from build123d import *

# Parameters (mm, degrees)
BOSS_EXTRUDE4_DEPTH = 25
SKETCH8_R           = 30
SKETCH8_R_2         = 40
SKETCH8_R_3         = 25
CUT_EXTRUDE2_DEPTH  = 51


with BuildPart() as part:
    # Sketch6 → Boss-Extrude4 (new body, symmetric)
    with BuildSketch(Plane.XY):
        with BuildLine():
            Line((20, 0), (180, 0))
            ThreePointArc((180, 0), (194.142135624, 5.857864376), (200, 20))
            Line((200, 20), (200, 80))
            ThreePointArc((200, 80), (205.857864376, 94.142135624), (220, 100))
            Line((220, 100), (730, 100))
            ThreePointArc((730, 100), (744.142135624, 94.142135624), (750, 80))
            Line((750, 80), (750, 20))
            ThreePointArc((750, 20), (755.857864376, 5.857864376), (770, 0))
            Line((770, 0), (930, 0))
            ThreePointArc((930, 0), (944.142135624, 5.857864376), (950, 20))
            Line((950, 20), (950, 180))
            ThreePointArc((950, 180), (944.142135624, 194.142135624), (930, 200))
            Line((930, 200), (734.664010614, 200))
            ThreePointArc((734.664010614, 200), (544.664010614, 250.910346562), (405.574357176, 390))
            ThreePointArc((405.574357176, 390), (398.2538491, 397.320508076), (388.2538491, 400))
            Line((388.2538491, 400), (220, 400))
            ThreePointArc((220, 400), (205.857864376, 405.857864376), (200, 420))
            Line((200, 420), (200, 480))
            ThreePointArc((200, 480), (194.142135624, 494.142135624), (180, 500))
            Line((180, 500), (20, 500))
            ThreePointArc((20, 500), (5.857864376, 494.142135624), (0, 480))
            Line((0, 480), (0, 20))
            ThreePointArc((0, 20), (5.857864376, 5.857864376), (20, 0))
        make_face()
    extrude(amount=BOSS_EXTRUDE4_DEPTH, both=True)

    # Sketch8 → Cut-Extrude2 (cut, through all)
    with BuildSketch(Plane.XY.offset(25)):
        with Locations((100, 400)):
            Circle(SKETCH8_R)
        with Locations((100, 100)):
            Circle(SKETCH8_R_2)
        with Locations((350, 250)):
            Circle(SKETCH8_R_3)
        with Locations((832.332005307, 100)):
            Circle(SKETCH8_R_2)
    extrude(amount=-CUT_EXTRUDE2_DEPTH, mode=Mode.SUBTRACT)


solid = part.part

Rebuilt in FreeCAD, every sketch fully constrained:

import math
import FreeCAD as App
import Part
import Sketcher
from FreeCAD import Vector

doc = App.newDocument("Part")
body = doc.addObject("PartDesign::Body", "Body")

# Sketch on XY plane
sketch1 = doc.addObject("Sketcher::SketchObject", "Sketch")
body.addObject(sketch1)
sketch1.AttachmentSupport = (doc.XY_Plane, [""])
sketch1.MapMode = "FlatFace"
sketch1.addGeometry([
    Part.LineSegment(Vector(20, 0, 0), Vector(180, 0, 0)),  # 0
    Part.ArcOfCircle(Part.Circle(Vector(180, 20, 0), Vector(0, 0, 1), 20), math.radians(-90), math.radians(0)),  # 1
    Part.LineSegment(Vector(200, 20, 0), Vector(200, 80, 0)),  # 2
    Part.ArcOfCircle(Part.Circle(Vector(220, 80, 0), Vector(0, 0, 1), 20), math.radians(90), math.radians(180)),  # 3
    Part.LineSegment(Vector(220, 100, 0), Vector(730, 100, 0)),  # 4
    Part.ArcOfCircle(Part.Circle(Vector(730, 80, 0), Vector(0, 0, 1), 20), math.radians(0), math.radians(90)),  # 5
    Part.LineSegment(Vector(750, 80, 0), Vector(750, 20, 0)),  # 6
    Part.ArcOfCircle(Part.Circle(Vector(770, 20, 0), Vector(0, 0, 1), 20), math.radians(180), math.radians(270)),  # 7
    Part.LineSegment(Vector(770, 0, 0), Vector(930, 0, 0)),  # 8
    Part.ArcOfCircle(Part.Circle(Vector(930, 20, 0), Vector(0, 0, 1), 20), math.radians(-90), math.radians(0)),  # 9
    Part.LineSegment(Vector(950, 20, 0), Vector(950, 180, 0)),  # 10
    Part.ArcOfCircle(Part.Circle(Vector(930, 180, 0), Vector(0, 0, 1), 20), math.radians(0), math.radians(90)),  # 11
    Part.LineSegment(Vector(930, 200, 0), Vector(735, 200, 0)),  # 12
    Part.ArcOfCircle(Part.Circle(Vector(735, 580, 0), Vector(0, 0, 1), 380), math.radians(-150), math.radians(-90)),  # 13
    Part.ArcOfCircle(Part.Circle(Vector(388, 380, 0), Vector(0, 0, 1), 20), math.radians(30), math.radians(90)),  # 14
    Part.LineSegment(Vector(388, 400, 0), Vector(220, 400, 0)),  # 15
    Part.ArcOfCircle(Part.Circle(Vector(220, 420, 0), Vector(0, 0, 1), 20), math.radians(180), math.radians(270)),  # 16
    Part.LineSegment(Vector(200, 420, 0), Vector(200, 480, 0)),  # 17
    Part.ArcOfCircle(Part.Circle(Vector(180, 480, 0), Vector(0, 0, 1), 20), math.radians(0), math.radians(90)),  # 18
    Part.LineSegment(Vector(180, 500, 0), Vector(20, 500, 0)),  # 19
    Part.ArcOfCircle(Part.Circle(Vector(20, 480, 0), Vector(0, 0, 1), 20), math.radians(90), math.radians(180)),  # 20
    Part.LineSegment(Vector(0, 480, 0), Vector(0, 20, 0)),  # 21
    Part.ArcOfCircle(Part.Circle(Vector(20, 20, 0), Vector(0, 0, 1), 20), math.radians(180), math.radians(270)),  # 22
], False)
sketch1.addConstraint([
    Sketcher.Constraint("Tangent", 0, 2, 1, 1),
    Sketcher.Constraint("Tangent", 1, 2, 2, 1),
    Sketcher.Constraint("Tangent", 2, 2, 3, 2),
    Sketcher.Constraint("Tangent", 3, 1, 4, 1),
    Sketcher.Constraint("Tangent", 4, 2, 5, 2),
    Sketcher.Constraint("Tangent", 5, 1, 6, 1),
    Sketcher.Constraint("Tangent", 6, 2, 7, 1),
    Sketcher.Constraint("Tangent", 7, 2, 8, 1),
    Sketcher.Constraint("Tangent", 8, 2, 9, 1),
    Sketcher.Constraint("Tangent", 9, 2, 10, 1),
    Sketcher.Constraint("Tangent", 10, 2, 11, 1),
    Sketcher.Constraint("Tangent", 11, 2, 12, 1),
    Sketcher.Constraint("Tangent", 12, 2, 13, 2),
    Sketcher.Constraint("Tangent", 13, 1, 14, 1),
    Sketcher.Constraint("Tangent", 14, 2, 15, 1),
    Sketcher.Constraint("Tangent", 15, 2, 16, 2),
    Sketcher.Constraint("Tangent", 16, 1, 17, 1),
    Sketcher.Constraint("Tangent", 17, 2, 18, 1),
    Sketcher.Constraint("Tangent", 18, 2, 19, 1),
    Sketcher.Constraint("Tangent", 19, 2, 20, 1),
    Sketcher.Constraint("Tangent", 20, 2, 21, 1),
    Sketcher.Constraint("Tangent", 21, 2, 22, 1),
    Sketcher.Constraint("Tangent", 22, 2, 0, 1),
    Sketcher.Constraint("Horizontal", 0),
    Sketcher.Constraint("Vertical", 2),
    Sketcher.Constraint("Horizontal", 4),
    Sketcher.Constraint("Vertical", 6),
    Sketcher.Constraint("Horizontal", 8),
    Sketcher.Constraint("Vertical", 10),
    Sketcher.Constraint("Horizontal", 12),
    Sketcher.Constraint("Horizontal", 15),
    Sketcher.Constraint("Vertical", 17),
    Sketcher.Constraint("Horizontal", 19),
    Sketcher.Constraint("Vertical", 21),
    Sketcher.Constraint("Equal", 1, 3),
    Sketcher.Constraint("Equal", 3, 5),
    Sketcher.Constraint("Equal", 5, 7),
    Sketcher.Constraint("Equal", 7, 9),
    Sketcher.Constraint("Equal", 9, 11),
    Sketcher.Constraint("Equal", 11, 14),
    Sketcher.Constraint("Equal", 14, 16),
    Sketcher.Constraint("Equal", 16, 18),
    Sketcher.Constraint("Equal", 18, 20),
    Sketcher.Constraint("Equal", 20, 22),
    Sketcher.Constraint("PointOnObject", 0, 2, -1),
    Sketcher.Constraint("PointOnObject", 7, 2, -1),
    Sketcher.Constraint("PointOnObject", 20, 2, -2),
    Sketcher.Constraint("Vertical", 3, 3, 16, 3),
    Sketcher.Constraint("Equal", 0, 8),
    Sketcher.Constraint("Equal", 19, 10),
    Sketcher.Constraint("Equal", 6, 17),
    Sketcher.Constraint("Radius", 1, 20.0),
    Sketcher.Constraint("Radius", 13, 380.0),
    Sketcher.Constraint("DistanceX", 0, 1, 0, 2, 160.0),
    Sketcher.Constraint("DistanceX", 4, 1, 4, 2, 510.0),
    Sketcher.Constraint("DistanceY", 2, 1, 2, 2, 60.0),
    Sketcher.Constraint("DistanceY", 21, 2, 21, 1, 460.0),
    Sketcher.Constraint("DistanceX", 12, 2, 12, 1, 195.335989),
])
pad1 = doc.addObject("PartDesign::Pad", "Pad")
body.addObject(pad1)
pad1.Profile = sketch1
pad1.Length = 50
pad1.Midplane = True

# Sketch on XY plane
sketch2 = doc.addObject("Sketcher::SketchObject", "Sketch001")
body.addObject(sketch2)
sketch2.AttachmentSupport = (doc.XY_Plane, [""])
sketch2.MapMode = "FlatFace"
sketch2.AttachmentOffset = App.Placement(Vector(0, 0, 25), App.Rotation())
sketch2.addGeometry([
    Part.Circle(Vector(100, 400, 0), Vector(0, 0, 1), 30),
    Part.Circle(Vector(100, 100, 0), Vector(0, 0, 1), 40),
    Part.Circle(Vector(350, 250, 0), Vector(0, 0, 1), 25),
    Part.Circle(Vector(832, 100, 0), Vector(0, 0, 1), 40),
], False)
sketch2.addConstraint([
    Sketcher.Constraint("Equal", 1, 3),
    Sketcher.Constraint("Horizontal", 1, 3, 3, 3),
    Sketcher.Constraint("Vertical", 0, 3, 1, 3),
    Sketcher.Constraint("Diameter", 0, 60.0),
    Sketcher.Constraint("Diameter", 1, 80.0),
    Sketcher.Constraint("Diameter", 2, 50.0),
    Sketcher.Constraint("DistanceX", -1, 1, 0, 3, 100.0),
    Sketcher.Constraint("DistanceY", -1, 1, 0, 3, 400.0),
    Sketcher.Constraint("DistanceY", -1, 1, 1, 3, 100.0),
    Sketcher.Constraint("DistanceX", -1, 1, 2, 3, 350.0),
    Sketcher.Constraint("DistanceY", -1, 1, 2, 3, 250.0),
    Sketcher.Constraint("DistanceX", -1, 1, 3, 3, 832.332005),
])
pocket1 = doc.addObject("PartDesign::Pocket", "Pocket")
body.addObject(pocket1)
pocket1.Profile = sketch2
pocket1.Type = "ThroughAll"

doc.recompute()
